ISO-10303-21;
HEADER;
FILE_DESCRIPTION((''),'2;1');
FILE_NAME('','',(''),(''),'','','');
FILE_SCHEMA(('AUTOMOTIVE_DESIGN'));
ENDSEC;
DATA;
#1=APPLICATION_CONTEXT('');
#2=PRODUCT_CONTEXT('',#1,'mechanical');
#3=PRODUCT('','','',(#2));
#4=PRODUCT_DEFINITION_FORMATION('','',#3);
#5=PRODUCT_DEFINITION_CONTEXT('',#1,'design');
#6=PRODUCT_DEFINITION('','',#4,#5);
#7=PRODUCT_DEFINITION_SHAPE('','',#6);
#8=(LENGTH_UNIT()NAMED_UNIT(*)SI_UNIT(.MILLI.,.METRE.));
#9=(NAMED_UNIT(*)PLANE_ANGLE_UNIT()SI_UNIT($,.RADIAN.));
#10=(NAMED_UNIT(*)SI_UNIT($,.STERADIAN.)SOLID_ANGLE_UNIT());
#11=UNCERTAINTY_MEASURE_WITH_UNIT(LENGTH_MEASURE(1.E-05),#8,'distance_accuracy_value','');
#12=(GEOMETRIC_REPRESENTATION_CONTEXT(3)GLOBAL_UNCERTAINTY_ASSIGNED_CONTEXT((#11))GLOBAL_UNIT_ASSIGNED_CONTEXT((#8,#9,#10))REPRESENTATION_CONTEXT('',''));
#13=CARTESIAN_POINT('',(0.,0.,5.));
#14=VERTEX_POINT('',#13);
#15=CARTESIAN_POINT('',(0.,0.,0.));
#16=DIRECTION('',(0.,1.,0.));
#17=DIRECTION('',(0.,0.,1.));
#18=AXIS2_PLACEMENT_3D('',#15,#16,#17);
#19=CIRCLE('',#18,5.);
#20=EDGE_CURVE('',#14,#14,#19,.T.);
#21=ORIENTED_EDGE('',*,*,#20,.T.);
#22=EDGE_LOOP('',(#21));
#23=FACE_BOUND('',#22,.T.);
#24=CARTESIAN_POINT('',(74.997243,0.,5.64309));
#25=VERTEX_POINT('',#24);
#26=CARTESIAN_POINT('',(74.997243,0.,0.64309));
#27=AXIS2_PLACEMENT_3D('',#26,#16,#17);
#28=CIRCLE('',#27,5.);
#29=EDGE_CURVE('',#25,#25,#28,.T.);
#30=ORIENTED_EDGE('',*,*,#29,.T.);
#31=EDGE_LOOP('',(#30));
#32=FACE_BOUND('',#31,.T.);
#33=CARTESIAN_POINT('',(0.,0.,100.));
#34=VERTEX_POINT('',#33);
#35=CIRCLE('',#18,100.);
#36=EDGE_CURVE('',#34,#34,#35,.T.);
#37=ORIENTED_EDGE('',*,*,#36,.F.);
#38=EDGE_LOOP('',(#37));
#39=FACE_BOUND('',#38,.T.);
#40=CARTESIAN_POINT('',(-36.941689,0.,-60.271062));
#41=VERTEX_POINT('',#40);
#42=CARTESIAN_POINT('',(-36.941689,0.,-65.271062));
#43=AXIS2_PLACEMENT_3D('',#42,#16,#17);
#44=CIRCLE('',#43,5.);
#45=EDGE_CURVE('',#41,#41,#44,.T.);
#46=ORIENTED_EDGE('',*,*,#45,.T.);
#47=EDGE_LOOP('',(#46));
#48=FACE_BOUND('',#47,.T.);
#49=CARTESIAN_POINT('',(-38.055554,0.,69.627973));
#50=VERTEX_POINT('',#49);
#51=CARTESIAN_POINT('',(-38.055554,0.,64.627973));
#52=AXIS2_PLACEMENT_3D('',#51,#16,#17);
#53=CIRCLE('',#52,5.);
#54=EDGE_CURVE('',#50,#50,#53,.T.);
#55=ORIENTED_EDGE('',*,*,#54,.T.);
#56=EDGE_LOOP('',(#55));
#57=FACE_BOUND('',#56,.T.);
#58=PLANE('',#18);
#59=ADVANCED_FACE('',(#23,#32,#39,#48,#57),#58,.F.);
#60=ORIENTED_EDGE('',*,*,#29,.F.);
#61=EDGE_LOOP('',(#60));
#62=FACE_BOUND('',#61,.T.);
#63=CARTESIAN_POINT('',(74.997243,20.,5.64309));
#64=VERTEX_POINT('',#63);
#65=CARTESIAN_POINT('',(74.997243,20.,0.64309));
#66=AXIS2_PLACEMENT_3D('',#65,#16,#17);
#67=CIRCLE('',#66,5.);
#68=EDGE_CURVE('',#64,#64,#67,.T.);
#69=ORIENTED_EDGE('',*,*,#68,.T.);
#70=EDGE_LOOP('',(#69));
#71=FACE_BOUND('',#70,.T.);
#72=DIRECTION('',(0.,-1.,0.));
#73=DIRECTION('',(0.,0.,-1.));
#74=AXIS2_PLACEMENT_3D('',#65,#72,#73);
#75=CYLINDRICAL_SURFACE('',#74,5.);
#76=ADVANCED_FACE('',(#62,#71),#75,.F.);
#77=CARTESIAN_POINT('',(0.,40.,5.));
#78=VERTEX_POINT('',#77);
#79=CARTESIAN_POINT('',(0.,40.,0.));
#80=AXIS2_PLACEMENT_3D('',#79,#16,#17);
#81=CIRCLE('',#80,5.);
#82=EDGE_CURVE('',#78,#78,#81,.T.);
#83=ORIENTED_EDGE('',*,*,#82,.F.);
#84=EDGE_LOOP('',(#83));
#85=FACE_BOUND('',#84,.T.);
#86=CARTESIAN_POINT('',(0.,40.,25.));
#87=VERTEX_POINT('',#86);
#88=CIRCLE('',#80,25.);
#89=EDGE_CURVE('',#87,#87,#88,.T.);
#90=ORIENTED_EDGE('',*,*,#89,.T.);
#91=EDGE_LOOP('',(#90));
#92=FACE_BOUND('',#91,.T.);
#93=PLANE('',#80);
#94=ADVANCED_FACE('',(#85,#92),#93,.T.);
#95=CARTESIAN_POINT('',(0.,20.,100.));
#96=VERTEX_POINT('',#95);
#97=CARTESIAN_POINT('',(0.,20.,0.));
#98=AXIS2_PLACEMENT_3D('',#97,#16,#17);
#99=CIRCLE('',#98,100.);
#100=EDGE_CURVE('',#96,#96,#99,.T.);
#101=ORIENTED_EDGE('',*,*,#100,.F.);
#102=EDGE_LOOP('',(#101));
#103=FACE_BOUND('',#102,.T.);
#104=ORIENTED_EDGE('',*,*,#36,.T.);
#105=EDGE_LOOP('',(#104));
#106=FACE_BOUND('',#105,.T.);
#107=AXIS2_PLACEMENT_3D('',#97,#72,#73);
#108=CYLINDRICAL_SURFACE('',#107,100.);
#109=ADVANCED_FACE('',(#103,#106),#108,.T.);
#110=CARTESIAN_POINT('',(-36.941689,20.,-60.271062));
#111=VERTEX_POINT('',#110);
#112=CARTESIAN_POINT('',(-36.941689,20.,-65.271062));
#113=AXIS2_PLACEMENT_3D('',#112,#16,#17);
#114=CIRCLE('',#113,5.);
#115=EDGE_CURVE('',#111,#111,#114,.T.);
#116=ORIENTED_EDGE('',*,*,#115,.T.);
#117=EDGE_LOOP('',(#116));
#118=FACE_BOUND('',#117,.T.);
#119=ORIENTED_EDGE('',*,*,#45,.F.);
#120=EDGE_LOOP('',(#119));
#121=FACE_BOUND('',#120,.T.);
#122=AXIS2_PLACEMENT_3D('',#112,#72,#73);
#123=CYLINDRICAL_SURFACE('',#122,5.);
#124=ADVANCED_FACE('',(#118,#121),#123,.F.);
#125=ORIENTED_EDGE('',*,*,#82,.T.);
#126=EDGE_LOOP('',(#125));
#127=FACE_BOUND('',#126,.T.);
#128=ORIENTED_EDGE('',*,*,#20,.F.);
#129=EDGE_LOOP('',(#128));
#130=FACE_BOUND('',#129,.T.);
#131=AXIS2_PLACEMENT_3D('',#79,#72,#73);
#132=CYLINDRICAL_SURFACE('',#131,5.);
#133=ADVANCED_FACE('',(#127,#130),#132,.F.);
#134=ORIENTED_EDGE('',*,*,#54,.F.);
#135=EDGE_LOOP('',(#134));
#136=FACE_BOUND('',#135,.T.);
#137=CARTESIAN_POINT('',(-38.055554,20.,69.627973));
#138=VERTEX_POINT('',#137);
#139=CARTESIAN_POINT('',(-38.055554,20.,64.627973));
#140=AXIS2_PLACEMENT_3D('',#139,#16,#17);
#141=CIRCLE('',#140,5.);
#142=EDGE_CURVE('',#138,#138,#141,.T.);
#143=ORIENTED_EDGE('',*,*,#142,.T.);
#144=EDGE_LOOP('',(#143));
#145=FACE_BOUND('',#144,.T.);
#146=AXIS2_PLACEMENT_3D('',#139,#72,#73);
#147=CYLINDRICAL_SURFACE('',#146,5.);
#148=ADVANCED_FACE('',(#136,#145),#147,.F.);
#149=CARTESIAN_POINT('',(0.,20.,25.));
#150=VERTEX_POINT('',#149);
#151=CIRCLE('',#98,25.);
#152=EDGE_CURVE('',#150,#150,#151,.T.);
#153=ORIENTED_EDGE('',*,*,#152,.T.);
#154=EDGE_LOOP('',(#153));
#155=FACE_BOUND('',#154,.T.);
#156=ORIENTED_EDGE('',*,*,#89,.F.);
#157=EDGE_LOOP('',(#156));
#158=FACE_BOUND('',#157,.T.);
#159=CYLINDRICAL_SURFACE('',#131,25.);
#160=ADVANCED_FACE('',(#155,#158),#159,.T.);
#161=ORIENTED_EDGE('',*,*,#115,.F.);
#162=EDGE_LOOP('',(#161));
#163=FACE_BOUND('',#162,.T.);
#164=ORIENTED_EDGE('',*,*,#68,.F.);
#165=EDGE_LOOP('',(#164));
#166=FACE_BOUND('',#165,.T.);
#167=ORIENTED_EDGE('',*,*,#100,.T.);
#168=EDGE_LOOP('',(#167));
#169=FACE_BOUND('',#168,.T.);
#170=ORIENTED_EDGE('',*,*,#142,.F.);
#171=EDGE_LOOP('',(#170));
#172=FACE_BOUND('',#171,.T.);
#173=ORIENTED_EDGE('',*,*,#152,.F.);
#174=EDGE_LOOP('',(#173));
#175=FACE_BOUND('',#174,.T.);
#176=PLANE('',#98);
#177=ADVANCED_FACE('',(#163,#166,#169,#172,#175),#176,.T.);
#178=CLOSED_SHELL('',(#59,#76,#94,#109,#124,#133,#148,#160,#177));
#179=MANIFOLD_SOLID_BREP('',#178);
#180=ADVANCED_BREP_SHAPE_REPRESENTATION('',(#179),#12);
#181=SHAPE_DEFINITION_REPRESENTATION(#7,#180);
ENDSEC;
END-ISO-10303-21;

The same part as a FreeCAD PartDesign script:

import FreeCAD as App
import Part
import Sketcher
from FreeCAD import Vector

doc = App.newDocument("Part")
body = doc.addObject("PartDesign::Body", "Body")

sketch1 = body.newObject("Sketcher::SketchObject", "Sketch")
sketch1.AttachmentSupport = (doc.getObject("XZ_Plane"), [""])
sketch1.MapMode = "FlatFace"
sketch1.addGeometry(Part.Circle(Vector(0, 0, 0), Vector(0, 0, 1), 100), False)
sketch1.addGeometry(Part.Circle(Vector(-36.941689, -65.271062, 0), Vector(0, 0, 1), 5), False)
sketch1.addGeometry(Part.Circle(Vector(-38.055554, 64.627973, 0), Vector(0, 0, 1), 5), False)
sketch1.addGeometry(Part.Circle(Vector(0, 0, 0), Vector(0, 0, 1), 25), False)
sketch1.addGeometry(Part.Circle(Vector(74.997243, 0.64309, 0), Vector(0, 0, 1), 5), False)
sketch1.addConstraint(Sketcher.Constraint("Coincident", 0, 3, -1, 1))
sketch1.addConstraint(Sketcher.Constraint("Coincident", 3, 3, -1, 1))
sketch1.addConstraint(Sketcher.Constraint("Equal", 1, 2))
sketch1.addConstraint(Sketcher.Constraint("Equal", 2, 4))
sketch1.addConstraint(Sketcher.Constraint("Diameter", 0, 200.0))
sketch1.addConstraint(Sketcher.Constraint("Diameter", 1, 10.0))
sketch1.addConstraint(Sketcher.Constraint("Diameter", 3, 50.0))
sketch1.addConstraint(Sketcher.Constraint("DistanceX", 1, 3, -1, 1, 36.941689))
sketch1.addConstraint(Sketcher.Constraint("DistanceY", -1, 1, 4, 3, 0.64309))
sketch1.addConstraint(Sketcher.Constraint("DistanceY", 1, 3, -1, 1, 65.271062))
sketch1.addConstraint(Sketcher.Constraint("DistanceX", 2, 3, -1, 1, 38.055554))
sketch1.addConstraint(Sketcher.Constraint("DistanceY", -1, 1, 2, 3, 64.627973))
sketch1.addConstraint(Sketcher.Constraint("DistanceX", -1, 1, 4, 3, 74.997243))
pad1 = body.newObject("PartDesign::Pad", "Pad")
pad1.Profile = sketch1
pad1.Length = 20
pad1.Reversed = True

sketch2 = body.newObject("Sketcher::SketchObject", "Sketch001")
sketch2.AttachmentSupport = (doc.getObject("XZ_Plane"), [""])
sketch2.MapMode = "FlatFace"
sketch2.addGeometry(Part.Circle(Vector(0, 0, 0), Vector(0, 0, 1), 25), False)
sketch2.addGeometry(Part.Circle(Vector(0, 0, 0), Vector(0, 0, 1), 5), False)
sketch2.addConstraint(Sketcher.Constraint("Coincident", 0, 3, -1, 1))
sketch2.addConstraint(Sketcher.Constraint("Coincident", 1, 3, -1, 1))
sketch2.addConstraint(Sketcher.Constraint("Diameter", 0, 50.0))
sketch2.addConstraint(Sketcher.Constraint("Diameter", 1, 10.0))
pad2 = body.newObject("PartDesign::Pad", "Pad001")
pad2.Profile = sketch2
pad2.Length = 40
pad2.Reversed = True

doc.recompute()
